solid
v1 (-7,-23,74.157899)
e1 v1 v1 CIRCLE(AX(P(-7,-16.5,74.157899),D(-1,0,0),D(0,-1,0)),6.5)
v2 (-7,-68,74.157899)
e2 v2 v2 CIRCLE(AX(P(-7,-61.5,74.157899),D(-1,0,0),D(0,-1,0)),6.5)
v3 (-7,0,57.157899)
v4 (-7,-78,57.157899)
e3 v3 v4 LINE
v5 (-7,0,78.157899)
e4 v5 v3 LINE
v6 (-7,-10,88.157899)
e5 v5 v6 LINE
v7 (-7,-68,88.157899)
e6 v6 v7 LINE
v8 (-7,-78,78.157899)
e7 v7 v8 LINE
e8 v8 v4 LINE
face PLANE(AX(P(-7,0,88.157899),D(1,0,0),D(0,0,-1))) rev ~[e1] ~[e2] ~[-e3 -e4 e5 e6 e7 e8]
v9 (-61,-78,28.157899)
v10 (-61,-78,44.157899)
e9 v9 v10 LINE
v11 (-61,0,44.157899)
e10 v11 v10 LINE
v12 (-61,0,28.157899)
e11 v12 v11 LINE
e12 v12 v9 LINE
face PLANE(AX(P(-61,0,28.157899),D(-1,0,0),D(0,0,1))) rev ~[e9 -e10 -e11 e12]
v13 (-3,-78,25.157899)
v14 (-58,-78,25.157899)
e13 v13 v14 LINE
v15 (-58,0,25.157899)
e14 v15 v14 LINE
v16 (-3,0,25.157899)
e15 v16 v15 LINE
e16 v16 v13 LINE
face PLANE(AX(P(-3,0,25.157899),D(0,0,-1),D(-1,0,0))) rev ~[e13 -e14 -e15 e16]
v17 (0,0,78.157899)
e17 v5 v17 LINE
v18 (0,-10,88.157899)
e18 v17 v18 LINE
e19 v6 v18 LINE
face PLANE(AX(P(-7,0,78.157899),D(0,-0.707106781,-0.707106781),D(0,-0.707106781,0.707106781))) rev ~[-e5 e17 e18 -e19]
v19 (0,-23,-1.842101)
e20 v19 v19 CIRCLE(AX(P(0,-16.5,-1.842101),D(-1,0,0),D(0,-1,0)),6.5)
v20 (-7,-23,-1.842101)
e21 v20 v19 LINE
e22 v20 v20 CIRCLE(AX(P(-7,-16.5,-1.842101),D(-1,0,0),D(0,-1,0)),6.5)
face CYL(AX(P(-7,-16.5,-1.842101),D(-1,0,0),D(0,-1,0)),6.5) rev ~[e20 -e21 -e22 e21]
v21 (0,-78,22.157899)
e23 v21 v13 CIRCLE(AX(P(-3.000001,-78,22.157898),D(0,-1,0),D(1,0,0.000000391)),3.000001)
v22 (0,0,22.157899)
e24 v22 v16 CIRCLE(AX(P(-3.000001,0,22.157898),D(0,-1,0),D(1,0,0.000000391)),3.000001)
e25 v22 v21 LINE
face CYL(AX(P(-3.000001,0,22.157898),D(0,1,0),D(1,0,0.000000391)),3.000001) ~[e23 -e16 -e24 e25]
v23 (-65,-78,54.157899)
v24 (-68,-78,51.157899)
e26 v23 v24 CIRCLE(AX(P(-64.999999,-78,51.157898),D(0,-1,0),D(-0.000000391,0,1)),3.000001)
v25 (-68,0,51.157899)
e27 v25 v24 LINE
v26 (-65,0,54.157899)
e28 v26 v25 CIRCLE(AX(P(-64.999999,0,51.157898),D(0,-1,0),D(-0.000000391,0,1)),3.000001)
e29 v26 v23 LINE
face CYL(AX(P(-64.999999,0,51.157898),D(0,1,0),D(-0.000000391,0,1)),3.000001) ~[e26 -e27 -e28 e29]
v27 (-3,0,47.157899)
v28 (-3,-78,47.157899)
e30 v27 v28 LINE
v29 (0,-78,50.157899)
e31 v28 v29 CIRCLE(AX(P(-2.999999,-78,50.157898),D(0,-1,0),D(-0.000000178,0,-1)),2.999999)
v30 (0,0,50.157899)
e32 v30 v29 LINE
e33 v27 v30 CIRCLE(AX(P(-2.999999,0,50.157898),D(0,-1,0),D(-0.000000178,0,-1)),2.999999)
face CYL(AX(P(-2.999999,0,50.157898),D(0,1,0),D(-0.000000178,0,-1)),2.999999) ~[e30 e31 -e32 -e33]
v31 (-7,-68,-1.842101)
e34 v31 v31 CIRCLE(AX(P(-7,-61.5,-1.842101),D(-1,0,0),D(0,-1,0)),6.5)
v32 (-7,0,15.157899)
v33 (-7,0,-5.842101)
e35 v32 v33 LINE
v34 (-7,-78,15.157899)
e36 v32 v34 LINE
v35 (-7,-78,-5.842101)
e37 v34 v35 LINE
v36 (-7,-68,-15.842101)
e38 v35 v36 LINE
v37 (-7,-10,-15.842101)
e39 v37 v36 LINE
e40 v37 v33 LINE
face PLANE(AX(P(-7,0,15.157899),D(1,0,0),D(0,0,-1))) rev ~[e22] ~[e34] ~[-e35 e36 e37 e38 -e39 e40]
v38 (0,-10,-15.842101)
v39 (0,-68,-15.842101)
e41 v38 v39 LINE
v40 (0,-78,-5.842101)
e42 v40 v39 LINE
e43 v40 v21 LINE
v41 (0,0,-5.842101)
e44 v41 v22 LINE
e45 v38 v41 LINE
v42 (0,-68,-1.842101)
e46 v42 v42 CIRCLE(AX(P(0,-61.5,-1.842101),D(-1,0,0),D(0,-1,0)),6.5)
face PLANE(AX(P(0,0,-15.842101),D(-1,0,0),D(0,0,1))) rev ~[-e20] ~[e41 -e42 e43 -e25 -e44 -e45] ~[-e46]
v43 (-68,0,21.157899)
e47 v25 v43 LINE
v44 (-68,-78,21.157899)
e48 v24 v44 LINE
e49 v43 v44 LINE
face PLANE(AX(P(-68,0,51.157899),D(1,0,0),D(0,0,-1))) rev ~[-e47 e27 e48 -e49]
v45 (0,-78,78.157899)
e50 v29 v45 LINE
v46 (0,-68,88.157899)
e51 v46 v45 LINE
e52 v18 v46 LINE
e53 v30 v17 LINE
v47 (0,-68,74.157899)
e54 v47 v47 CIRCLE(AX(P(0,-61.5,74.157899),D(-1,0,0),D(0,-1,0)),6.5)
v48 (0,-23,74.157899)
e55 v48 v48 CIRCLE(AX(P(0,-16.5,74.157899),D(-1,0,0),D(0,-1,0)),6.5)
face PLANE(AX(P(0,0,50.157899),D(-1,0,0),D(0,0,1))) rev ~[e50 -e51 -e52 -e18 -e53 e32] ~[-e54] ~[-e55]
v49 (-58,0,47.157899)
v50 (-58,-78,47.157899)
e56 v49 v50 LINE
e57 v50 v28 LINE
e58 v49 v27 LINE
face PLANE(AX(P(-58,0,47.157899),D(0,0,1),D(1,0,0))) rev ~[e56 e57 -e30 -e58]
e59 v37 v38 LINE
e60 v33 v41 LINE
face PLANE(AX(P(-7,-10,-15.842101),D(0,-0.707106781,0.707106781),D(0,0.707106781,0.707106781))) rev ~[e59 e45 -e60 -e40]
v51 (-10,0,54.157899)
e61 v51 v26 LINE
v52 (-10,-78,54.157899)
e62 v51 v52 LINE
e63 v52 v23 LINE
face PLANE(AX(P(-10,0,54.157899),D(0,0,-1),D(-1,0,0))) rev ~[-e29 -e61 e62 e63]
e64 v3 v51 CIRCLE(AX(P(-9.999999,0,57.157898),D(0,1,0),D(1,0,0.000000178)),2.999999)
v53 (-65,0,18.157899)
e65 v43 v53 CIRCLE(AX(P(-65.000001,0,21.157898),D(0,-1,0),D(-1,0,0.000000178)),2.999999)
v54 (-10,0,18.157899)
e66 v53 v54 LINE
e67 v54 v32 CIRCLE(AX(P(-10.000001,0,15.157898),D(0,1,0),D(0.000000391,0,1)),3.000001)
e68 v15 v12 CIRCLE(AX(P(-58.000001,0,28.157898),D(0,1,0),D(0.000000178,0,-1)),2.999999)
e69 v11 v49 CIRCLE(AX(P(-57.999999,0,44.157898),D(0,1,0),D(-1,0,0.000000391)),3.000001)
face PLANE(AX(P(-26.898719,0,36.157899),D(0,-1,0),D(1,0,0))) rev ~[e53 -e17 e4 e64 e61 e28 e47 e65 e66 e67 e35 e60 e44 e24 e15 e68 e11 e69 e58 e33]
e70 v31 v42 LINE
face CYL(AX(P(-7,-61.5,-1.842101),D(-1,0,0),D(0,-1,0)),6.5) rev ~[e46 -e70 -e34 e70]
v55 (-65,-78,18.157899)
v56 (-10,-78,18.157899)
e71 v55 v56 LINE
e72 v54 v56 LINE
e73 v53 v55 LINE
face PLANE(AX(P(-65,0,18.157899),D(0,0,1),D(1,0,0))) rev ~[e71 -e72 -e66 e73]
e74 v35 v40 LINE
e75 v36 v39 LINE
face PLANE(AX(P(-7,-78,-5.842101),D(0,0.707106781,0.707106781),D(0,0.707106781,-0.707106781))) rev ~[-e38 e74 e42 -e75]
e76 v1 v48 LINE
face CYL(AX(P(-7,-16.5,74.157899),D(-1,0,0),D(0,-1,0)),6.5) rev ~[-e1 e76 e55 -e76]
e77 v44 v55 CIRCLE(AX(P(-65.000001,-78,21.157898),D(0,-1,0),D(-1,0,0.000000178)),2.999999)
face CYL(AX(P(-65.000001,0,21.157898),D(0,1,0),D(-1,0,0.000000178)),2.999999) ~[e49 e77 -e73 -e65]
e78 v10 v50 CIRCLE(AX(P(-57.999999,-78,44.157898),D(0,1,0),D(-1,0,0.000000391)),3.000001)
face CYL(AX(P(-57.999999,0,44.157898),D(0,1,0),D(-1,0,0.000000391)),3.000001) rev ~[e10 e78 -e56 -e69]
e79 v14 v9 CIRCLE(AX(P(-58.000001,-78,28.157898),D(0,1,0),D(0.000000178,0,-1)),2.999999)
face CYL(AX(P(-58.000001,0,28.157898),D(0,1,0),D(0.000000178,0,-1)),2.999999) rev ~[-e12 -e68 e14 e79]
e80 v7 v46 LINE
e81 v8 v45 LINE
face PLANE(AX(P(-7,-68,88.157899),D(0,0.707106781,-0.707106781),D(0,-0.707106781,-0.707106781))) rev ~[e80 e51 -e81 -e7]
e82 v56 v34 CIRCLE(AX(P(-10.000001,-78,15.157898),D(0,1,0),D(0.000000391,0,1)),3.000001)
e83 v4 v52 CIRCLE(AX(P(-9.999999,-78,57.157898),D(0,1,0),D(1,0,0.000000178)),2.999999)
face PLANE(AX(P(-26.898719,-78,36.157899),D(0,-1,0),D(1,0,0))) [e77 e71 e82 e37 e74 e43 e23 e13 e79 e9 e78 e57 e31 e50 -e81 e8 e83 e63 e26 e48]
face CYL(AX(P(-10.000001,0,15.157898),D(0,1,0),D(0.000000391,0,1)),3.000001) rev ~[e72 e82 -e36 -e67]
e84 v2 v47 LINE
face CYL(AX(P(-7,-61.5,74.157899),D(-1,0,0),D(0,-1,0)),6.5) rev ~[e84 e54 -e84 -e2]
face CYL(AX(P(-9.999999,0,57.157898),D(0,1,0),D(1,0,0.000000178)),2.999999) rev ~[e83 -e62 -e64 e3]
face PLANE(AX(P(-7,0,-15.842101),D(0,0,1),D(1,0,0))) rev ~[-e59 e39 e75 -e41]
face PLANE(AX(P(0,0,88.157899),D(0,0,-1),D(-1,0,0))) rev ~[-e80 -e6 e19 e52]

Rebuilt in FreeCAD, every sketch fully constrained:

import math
import FreeCAD as App
import Part
import Sketcher
from FreeCAD import Vector

doc = App.newDocument("Part")
body = doc.addObject("PartDesign::Body", "Body")

# Sketch on XZ plane
sketch1 = doc.addObject("Sketcher::SketchObject", "Sketch")
body.addObject(sketch1)
sketch1.AttachmentSupport = (doc.XZ_Plane, [""])
sketch1.MapMode = "FlatFace"
sketch1.addGeometry([
    Part.LineSegment(Vector(0, 50.2, 0), Vector(0, 88.2, 0)),  # 0
    Part.LineSegment(Vector(0, 88.2, 0), Vector(-7, 88.2, 0)),  # 1
    Part.LineSegment(Vector(-7, 88.2, 0), Vector(-7, 57.2, 0)),  # 2
    Part.ArcOfCircle(Part.Circle(Vector(-10, 57.2, 0), Vector(0, 0, 1), 3), math.radians(-90), math.radians(0)),  # 3
    Part.LineSegment(Vector(-10, 54.2, 0), Vector(-65, 54.2, 0)),  # 4
    Part.ArcOfCircle(Part.Circle(Vector(-65, 51.2, 0), Vector(0, 0, 1), 3), math.radians(90), math.radians(180)),  # 5
    Part.LineSegment(Vector(-68, 51.2, 0), Vector(-68, 21.2, 0)),  # 6
    Part.ArcOfCircle(Part.Circle(Vector(-65, 21.2, 0), Vector(0, 0, 1), 3), math.radians(180), math.radians(270)),  # 7
    Part.LineSegment(Vector(-65, 18.2, 0), Vector(-10, 18.2, 0)),  # 8
    Part.ArcOfCircle(Part.Circle(Vector(-10, 15.2, 0), Vector(0, 0, 1), 3), math.radians(0), math.radians(90)),  # 9
    Part.LineSegment(Vector(-7, 15.2, 0), Vector(-7, -15.8, 0)),  # 10
    Part.LineSegment(Vector(-7, -15.8, 0), Vector(0, -15.8, 0)),  # 11
    Part.LineSegment(Vector(0, -15.8, 0), Vector(0, 22.2, 0)),  # 12
    Part.ArcOfCircle(Part.Circle(Vector(-3, 22.2, 0), Vector(0, 0, 1), 3), math.radians(0), math.radians(90)),  # 13
    Part.LineSegment(Vector(-3, 25.2, 0), Vector(-58, 25.2, 0)),  # 14
    Part.ArcOfCircle(Part.Circle(Vector(-58, 28.2, 0), Vector(0, 0, 1), 3), math.radians(180), math.radians(270)),  # 15
    Part.LineSegment(Vector(-61, 28.2, 0), Vector(-61, 44.2, 0)),  # 16
    Part.ArcOfCircle(Part.Circle(Vector(-58, 44.2, 0), Vector(0, 0, 1), 3), math.radians(90), math.radians(180)),  # 17
    Part.LineSegment(Vector(-58, 47.2, 0), Vector(-3, 47.2, 0)),  # 18
    Part.ArcOfCircle(Part.Circle(Vector(-3, 50.2, 0), Vector(0, 0, 1), 3), math.radians(-90), math.radians(0)),  # 19
], False)
sketch1.addConstraint([
    Sketcher.Constraint("Coincident", 0, 2, 1, 1),
    Sketcher.Constraint("Coincident", 1, 2, 2, 1),
    Sketcher.Constraint("Tangent", 2, 2, 3, 2),
    Sketcher.Constraint("Tangent", 3, 1, 4, 1),
    Sketcher.Constraint("Tangent", 4, 2, 5, 1),
    Sketcher.Constraint("Tangent", 5, 2, 6, 1),
    Sketcher.Constraint("Tangent", 6, 2, 7, 1),
    Sketcher.Constraint("Tangent", 7, 2, 8, 1),
    Sketcher.Constraint("Tangent", 8, 2, 9, 2),
    Sketcher.Constraint("Tangent", 9, 1, 10, 1),
    Sketcher.Constraint("Coincident", 10, 2, 11, 1),
    Sketcher.Constraint("Coincident", 11, 2, 12, 1),
    Sketcher.Constraint("Tangent", 12, 2, 13, 1),
    Sketcher.Constraint("Tangent", 13, 2, 14, 1),
    Sketcher.Constraint("Tangent", 14, 2, 15, 2),
    Sketcher.Constraint("Tangent", 15, 1, 16, 1),
    Sketcher.Constraint("Tangent", 16, 2, 17, 2),
    Sketcher.Constraint("Tangent", 17, 1, 18, 1),
    Sketcher.Constraint("Tangent", 18, 2, 19, 1),
    Sketcher.Constraint("Tangent", 19, 2, 0, 1),
    Sketcher.Constraint("Vertical", 0),
    Sketcher.Constraint("Horizontal", 1),
    Sketcher.Constraint("Vertical", 2),
    Sketcher.Constraint("Horizontal", 4),
    Sketcher.Constraint("Vertical", 6),
    Sketcher.Constraint("Horizontal", 8),
    Sketcher.Constraint("Vertical", 10),
    Sketcher.Constraint("Horizontal", 11),
    Sketcher.Constraint("Vertical", 12),
    Sketcher.Constraint("Horizontal", 14),
    Sketcher.Constraint("Vertical", 16),
    Sketcher.Constraint("Horizontal", 18),
    Sketcher.Constraint("Equal", 3, 5),
    Sketcher.Constraint("Equal", 5, 7),
    Sketcher.Constraint("Equal", 7, 9),
    Sketcher.Constraint("Equal", 9, 13),
    Sketcher.Constraint("Equal", 13, 15),
    Sketcher.Constraint("Equal", 15, 17),
    Sketcher.Constraint("Equal", 17, 19),
    Sketcher.Constraint("PointOnObject", 0, 2, -2),
    Sketcher.Constraint("PointOnObject", 11, 2, -2),
    Sketcher.Constraint("Vertical", 3, 3, 9, 3),
    Sketcher.Constraint("Equal", 8, 14),
    Sketcher.Constraint("Equal", 2, 10),
    Sketcher.Constraint("Equal", 0, 12),
    Sketcher.Constraint("Radius", 3, 2.999999),
    Sketcher.Constraint("DistanceX", 1, 2, 1, 1, 7.0),
    Sketcher.Constraint("DistanceX", 4, 2, 4, 1, 55.0),
    Sketcher.Constraint("DistanceY", 0, 1, 0, 2, 38.0),
    Sketcher.Constraint("DistanceY", 2, 2, 2, 1, 31.0),
    Sketcher.Constraint("DistanceY", 6, 2, 6, 1, 30.0),
    Sketcher.Constraint("DistanceY", -1, 1, 3, 3, 57.157898),
])
pad1 = doc.addObject("PartDesign::Pad", "Pad")
body.addObject(pad1)
pad1.Profile = sketch1
pad1.Length = 78

# Sketch on YZ plane
sketch2 = doc.addObject("Sketcher::SketchObject", "Sketch001")
body.addObject(sketch2)
sketch2.AttachmentSupport = (doc.YZ_Plane, [""])
sketch2.MapMode = "FlatFace"
sketch2.AttachmentOffset = App.Placement(Vector(0, 0, -7), App.Rotation())
sketch2.addGeometry([
    Part.Circle(Vector(-62, 74, 0), Vector(0, 0, 1), 6),  # 0
    Part.Circle(Vector(-16, 74, 0), Vector(0, 0, 1), 6),  # 1
    Part.Circle(Vector(-16, -2, 0), Vector(0, 0, 1), 6),  # 2
    Part.Circle(Vector(-62, -2, 0), Vector(0, 0, 1), 6),  # 3
    Part.LineSegment(Vector(-78, 88, 0), Vector(-68, 88, 0)),  # 4
    Part.LineSegment(Vector(-68, 88, 0), Vector(-78, 78, 0)),  # 5
    Part.LineSegment(Vector(-78, 78, 0), Vector(-78, 88, 0)),  # 6
    Part.LineSegment(Vector(0, 88, 0), Vector(0, 78, 0)),  # 7
    Part.LineSegment(Vector(0, 78, 0), Vector(-10, 88, 0)),  # 8
    Part.LineSegment(Vector(-10, 88, 0), Vector(0, 88, 0)),  # 9
    Part.LineSegment(Vector(-78, -6, 0), Vector(-68, -16, 0)),  # 10
    Part.LineSegment(Vector(-68, -16, 0), Vector(-78, -16, 0)),  # 11
    Part.LineSegment(Vector(-78, -16, 0), Vector(-78, -6, 0)),  # 12
    Part.LineSegment(Vector(0, -16, 0), Vector(-10, -16, 0)),  # 13
    Part.LineSegment(Vector(-10, -16, 0), Vector(0, -6, 0)),  # 14
    Part.LineSegment(Vector(0, -6, 0), Vector(0, -16, 0)),  # 15
], False)
sketch2.addConstraint([
    Sketcher.Constraint("Coincident", 4, 2, 5, 1),
    Sketcher.Constraint("Coincident", 5, 2, 6, 1),
    Sketcher.Constraint("Coincident", 6, 2, 4, 1),
    Sketcher.Constraint("Coincident", 7, 2, 8, 1),
    Sketcher.Constraint("Coincident", 8, 2, 9, 1),
    Sketcher.Constraint("Coincident", 9, 2, 7, 1),
    Sketcher.Constraint("Coincident", 10, 2, 11, 1),
    Sketcher.Constraint("Coincident", 11, 2, 12, 1),
    Sketcher.Constraint("Coincident", 12, 2, 10, 1),
    Sketcher.Constraint("Coincident", 13, 2, 14, 1),
    Sketcher.Constraint("Coincident", 14, 2, 15, 1),
    Sketcher.Constraint("Coincident", 15, 2, 13, 1),
    Sketcher.Constraint("Horizontal", 4),
    Sketcher.Constraint("Vertical", 6),
    Sketcher.Constraint("Vertical", 7),
    Sketcher.Constraint("Horizontal", 9),
    Sketcher.Constraint("Horizontal", 11),
    Sketcher.Constraint("Vertical", 12),
    Sketcher.Constraint("Horizontal", 13),
    Sketcher.Constraint("Vertical", 15),
    Sketcher.Constraint("Equal", 0, 1),
    Sketcher.Constraint("Equal", 1, 2),
    Sketcher.Constraint("Equal", 2, 3),
    Sketcher.Constraint("PointOnObject", 7, 2, -2),
    Sketcher.Constraint("PointOnObject", 14, 2, -2),
    Sketcher.Constraint("Perpendicular", 5, 8),
    Sketcher.Constraint("Parallel", 8, 10),
    Sketcher.Constraint("Perpendicular", 10, 14),
    Sketcher.Constraint("Horizontal", 0, 3, 1, 3),
    Sketcher.Constraint("Horizontal", 2, 3, 3, 3),
    Sketcher.Constraint("Horizontal", 5, 2, 7, 2),
    Sketcher.Constraint("Horizontal", 6, 2, 8, 2),
    Sketcher.Constraint("Horizontal", 11, 2, 13, 2),
    Sketcher.Constraint("Horizontal", 12, 2, 14, 2),
    Sketcher.Constraint("Vertical", 1, 3, 2, 3),
    Sketcher.Constraint("Vertical", 0, 3, 3, 3),
    Sketcher.Constraint("Vertical", 4, 2, 10, 2),
    Sketcher.Constraint("Vertical", 6, 2, 11, 2),
    Sketcher.Constraint("Vertical", 8, 2, 13, 2),
    Sketcher.Constraint("Diameter", 0, 13.0),
    Sketcher.Constraint("DistanceX", 4, 1, 4, 2, 10.0),
    Sketcher.Constraint("DistanceX", 4, 2, -1, 1, 68.0),
    Sketcher.Constraint("DistanceX", 0, 3, 1, 3, 45.0),
    Sketcher.Constraint("DistanceY", 2, 3, 1, 3, 76.0),
    Sketcher.Constraint("DistanceY", 0, 3, 4, 2, 14.0),
    Sketcher.Constraint("DistanceY", 10, 2, 3, 3, 14.0),
    Sketcher.Constraint("DistanceX", 0, 3, -1, 1, 61.5),
    Sketcher.Constraint("DistanceY", -1, 1, 0, 3, 74.157899),
])
pocket1 = doc.addObject("PartDesign::Pocket", "Pocket")
body.addObject(pocket1)
pocket1.Profile = sketch2
pocket1.Length = 25
pocket1.Reversed = True

doc.recompute()
